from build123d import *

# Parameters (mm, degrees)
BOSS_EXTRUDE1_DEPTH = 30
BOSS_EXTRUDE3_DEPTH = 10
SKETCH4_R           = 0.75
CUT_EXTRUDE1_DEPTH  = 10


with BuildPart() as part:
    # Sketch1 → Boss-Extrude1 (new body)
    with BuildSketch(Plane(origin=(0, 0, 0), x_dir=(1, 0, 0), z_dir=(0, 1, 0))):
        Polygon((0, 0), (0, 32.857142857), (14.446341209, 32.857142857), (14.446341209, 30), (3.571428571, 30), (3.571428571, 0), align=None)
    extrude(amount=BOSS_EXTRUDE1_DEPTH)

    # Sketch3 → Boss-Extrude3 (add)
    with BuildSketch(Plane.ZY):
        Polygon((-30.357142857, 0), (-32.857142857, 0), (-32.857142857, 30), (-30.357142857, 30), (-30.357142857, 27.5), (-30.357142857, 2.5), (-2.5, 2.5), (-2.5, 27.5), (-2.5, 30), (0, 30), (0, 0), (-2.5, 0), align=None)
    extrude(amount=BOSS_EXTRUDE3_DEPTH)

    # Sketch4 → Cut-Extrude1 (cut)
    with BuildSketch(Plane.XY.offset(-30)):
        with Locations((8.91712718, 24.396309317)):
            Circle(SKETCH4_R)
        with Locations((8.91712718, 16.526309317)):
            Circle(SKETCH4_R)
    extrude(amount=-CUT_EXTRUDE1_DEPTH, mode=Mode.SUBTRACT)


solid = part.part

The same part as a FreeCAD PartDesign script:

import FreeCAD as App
import Part
import Sketcher
Q = App.Units.Quantity

doc = App.newDocument("Part")
body = doc.addObject("PartDesign::Body", "Body")

sketch1 = body.newObject("Sketcher::SketchObject", "Sketch")
sketch1.AttachmentSupport = (doc.getObject("XZ_Plane"), [""])
sketch1.MapMode = "FlatFace"
sketch1.addGeometry([
    Part.LineSegment(App.Vector(0, -32.9, 0), App.Vector(0, 0, 0)),
    Part.LineSegment(App.Vector(0, 0, 0), App.Vector(3.6, 0, 0)),
    Part.LineSegment(App.Vector(3.6, 0, 0), App.Vector(3.6, -30, 0)),
    Part.LineSegment(App.Vector(3.6, -30, 0), App.Vector(14.4, -30, 0)),
    Part.LineSegment(App.Vector(14.4, -30, 0), App.Vector(14.4, -32.9, 0)),
    Part.LineSegment(App.Vector(14.4, -32.9, 0), App.Vector(0, -32.9, 0)),
], False)
sketch1.addConstraint([
    Sketcher.Constraint("Coincident", 0, 2, 1, 1),
    Sketcher.Constraint("Coincident", 1, 2, 2, 1),
    Sketcher.Constraint("Coincident", 2, 2, 3, 1),
    Sketcher.Constraint("Coincident", 3, 2, 4, 1),
    Sketcher.Constraint("Coincident", 4, 2, 5, 1),
    Sketcher.Constraint("Coincident", 5, 2, 0, 1),
    Sketcher.Constraint("Vertical", 0),
    Sketcher.Constraint("Horizontal", 1),
    Sketcher.Constraint("Vertical", 2),
    Sketcher.Constraint("Horizontal", 3),
    Sketcher.Constraint("Vertical", 4),
    Sketcher.Constraint("Horizontal", 5),
    Sketcher.Constraint("Coincident", 0, 2, -1, 1),
    Sketcher.Constraint("DistanceY", 2, 2, 2, 1, Q("30 mm")),
    Sketcher.Constraint("DistanceX", 1, 1, 1, 2, Q("3.571429 mm")),
    Sketcher.Constraint("DistanceX", 5, 2, 5, 1, Q("14.446341 mm")),
    Sketcher.Constraint("DistanceY", 0, 1, 0, 2, Q("32.857143 mm")),
])
pad1 = body.newObject("PartDesign::Pad", "Pad")
pad1.Profile = sketch1
pad1.Length = 30
pad1.Reversed = True

sketch2 = body.newObject("Sketcher::SketchObject", "Sketch001")
sketch2.AttachmentSupport = (doc.getObject("YZ_Plane"), [""])
sketch2.MapMode = "FlatFace"
sketch2.addGeometry([
    Part.LineSegment(App.Vector(0, -32.9, 0), App.Vector(0, 0, 0)),
    Part.LineSegment(App.Vector(0, 0, 0), App.Vector(30, 0, 0)),
    Part.LineSegment(App.Vector(30, 0, 0), App.Vector(30, -2.5, 0)),
    Part.LineSegment(App.Vector(30, -2.5, 0), App.Vector(2.5, -2.5, 0)),
    Part.LineSegment(App.Vector(2.5, -2.5, 0), App.Vector(2.5, -30.4, 0)),
    Part.LineSegment(App.Vector(2.5, -30.4, 0), App.Vector(30, -30.4, 0)),
    Part.LineSegment(App.Vector(30, -30.4, 0), App.Vector(30, -32.9, 0)),
    Part.LineSegment(App.Vector(30, -32.9, 0), App.Vector(0, -32.9, 0)),
], False)
sketch2.addConstraint([
    Sketcher.Constraint("Coincident", 0, 2, 1, 1),
    Sketcher.Constraint("Coincident", 1, 2, 2, 1),
    Sketcher.Constraint("Coincident", 2, 2, 3, 1),
    Sketcher.Constraint("Coincident", 3, 2, 4, 1),
    Sketcher.Constraint("Coincident", 4, 2, 5, 1),
    Sketcher.Constraint("Coincident", 5, 2, 6, 1),
    Sketcher.Constraint("Coincident", 6, 2, 7, 1),
    Sketcher.Constraint("Coincident", 7, 2, 0, 1),
    Sketcher.Constraint("Vertical", 0),
    Sketcher.Constraint("Horizontal", 1),
    Sketcher.Constraint("Vertical", 2),
    Sketcher.Constraint("Horizontal", 3),
    Sketcher.Constraint("Vertical", 4),
    Sketcher.Constraint("Horizontal", 5),
    Sketcher.Constraint("Vertical", 6),
    Sketcher.Constraint("Horizontal", 7),
    Sketcher.Constraint("Coincident", 0, 2, -1, 1),
    Sketcher.Constraint("Vertical", 2, 2, 5, 2),
    Sketcher.Constraint("Equal", 2, 6),
    Sketcher.Constraint("DistanceX", 1, 1, 1, 2, Q("30 mm")),
    Sketcher.Constraint("DistanceX", 3, 2, 3, 1, Q("27.5 mm")),
    Sketcher.Constraint("DistanceY", 2, 2, 2, 1, Q("2.5 mm")),
    Sketcher.Constraint("DistanceY", 0, 1, 0, 2, Q("32.857143 mm")),
])
pad2 = body.newObject("PartDesign::Pad", "Pad001")
pad2.Profile = sketch2
pad2.Length = 10
pad2.Reversed = True

sketch3 = body.newObject("Sketcher::SketchObject", "Sketch002")
sketch3.AttachmentSupport = (doc.getObject("XY_Plane"), [""])
sketch3.MapMode = "FlatFace"
sketch3.AttachmentOffset = App.Placement(App.Vector(0, 0, -30), App.Rotation())
sketch3.addGeometry([
    Part.Circle(App.Vector(8.9, 24.4, 0), App.Vector(0, 0, 1), 0.8),
    Part.Circle(App.Vector(8.9, 16.5, 0), App.Vector(0, 0, 1), 0.8),
], False)
sketch3.addConstraint([
    Sketcher.Constraint("Equal", 0, 1),
    Sketcher.Constraint("Vertical", 0, 3, 1, 3),
    Sketcher.Constraint("Diameter", 0, Q("1.5 mm")),
    Sketcher.Constraint("DistanceY", 1, 3, 0, 3, Q("7.87 mm")),
    Sketcher.Constraint("DistanceY", -1, 1, 0, 3, Q("24.396309 mm")),
    Sketcher.Constraint("DistanceX", -1, 1, 0, 3, Q("8.917127 mm")),
])
pocket1 = body.newObject("PartDesign::Pocket", "Pocket")
pocket1.Profile = sketch3
pocket1.Length = 10

doc.recompute()
